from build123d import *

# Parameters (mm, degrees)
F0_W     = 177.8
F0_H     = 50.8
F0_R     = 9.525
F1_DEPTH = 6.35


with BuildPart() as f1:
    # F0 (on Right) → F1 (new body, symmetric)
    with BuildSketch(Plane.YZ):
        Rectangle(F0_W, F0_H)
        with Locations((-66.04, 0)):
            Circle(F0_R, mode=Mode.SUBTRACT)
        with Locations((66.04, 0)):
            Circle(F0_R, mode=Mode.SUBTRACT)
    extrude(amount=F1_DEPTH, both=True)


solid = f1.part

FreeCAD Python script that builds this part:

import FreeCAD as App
import Part
import Sketcher
Q = App.Units.Quantity


def add_polygon(sketch, points):
    """Adds a closed chain of lines whose ends are joined by coincident constraints."""
    first, n = sketch.GeometryCount, len(points)
    for a, b in zip(points, points[1:] + points[:1]):
        sketch.addGeometry(Part.LineSegment(App.Vector(*a, 0), App.Vector(*b, 0)), False)
    for i in range(n):
        sketch.addConstraint(Sketcher.Constraint("Coincident", first + i, 2, first + (i + 1) % n, 1))

doc = App.newDocument("Part")
body = doc.addObject("PartDesign::Body", "Body")

# Sketch on YZ plane
sketch1 = doc.addObject("Sketcher::SketchObject", "Sketch")
body.addObject(sketch1)
sketch1.AttachmentSupport = (doc.YZ_Plane, [""])
sketch1.MapMode = "FlatFace"
add_polygon(sketch1, [(-89, 25), (-89, -25), (89, -25), (89, 25)])  # lines 0-3
sketch1.addGeometry(Part.Circle(App.Vector(-66, 0, 0), App.Vector(0, 0, 1), 10), False)  # 4
sketch1.addGeometry(Part.Circle(App.Vector(66, 0, 0), App.Vector(0, 0, 1), 10), False)  # 5
sketch1.addConstraint([
    Sketcher.Constraint("Vertical", 0),
    Sketcher.Constraint("Horizontal", 1),
    Sketcher.Constraint("Vertical", 2),
    Sketcher.Constraint("Horizontal", 3),
    Sketcher.Constraint("Equal", 4, 5),
    Sketcher.Constraint("Symmetric", 4, 3, 5, 3, -1, 1),
    Sketcher.Constraint("Symmetric", 0, 2, 2, 2, -1, 1),
    Sketcher.Constraint("PointOnObject", 4, 3, -1),
    Sketcher.Constraint("Diameter", 4, Q("0.75 in")),
    Sketcher.Constraint("DistanceX", 1, 1, 1, 2, Q("7 in")),
    Sketcher.Constraint("DistanceY", 0, 2, 0, 1, Q("2 in")),
    Sketcher.Constraint("DistanceX", 4, 3, -1, 1, Q("2.6 in")),
])
pad1 = doc.addObject("PartDesign::Pad", "Pad")
body.addObject(pad1)
pad1.Profile = sketch1
pad1.Length = Q("0.5 in")
pad1.Midplane = True

doc.recompute()
